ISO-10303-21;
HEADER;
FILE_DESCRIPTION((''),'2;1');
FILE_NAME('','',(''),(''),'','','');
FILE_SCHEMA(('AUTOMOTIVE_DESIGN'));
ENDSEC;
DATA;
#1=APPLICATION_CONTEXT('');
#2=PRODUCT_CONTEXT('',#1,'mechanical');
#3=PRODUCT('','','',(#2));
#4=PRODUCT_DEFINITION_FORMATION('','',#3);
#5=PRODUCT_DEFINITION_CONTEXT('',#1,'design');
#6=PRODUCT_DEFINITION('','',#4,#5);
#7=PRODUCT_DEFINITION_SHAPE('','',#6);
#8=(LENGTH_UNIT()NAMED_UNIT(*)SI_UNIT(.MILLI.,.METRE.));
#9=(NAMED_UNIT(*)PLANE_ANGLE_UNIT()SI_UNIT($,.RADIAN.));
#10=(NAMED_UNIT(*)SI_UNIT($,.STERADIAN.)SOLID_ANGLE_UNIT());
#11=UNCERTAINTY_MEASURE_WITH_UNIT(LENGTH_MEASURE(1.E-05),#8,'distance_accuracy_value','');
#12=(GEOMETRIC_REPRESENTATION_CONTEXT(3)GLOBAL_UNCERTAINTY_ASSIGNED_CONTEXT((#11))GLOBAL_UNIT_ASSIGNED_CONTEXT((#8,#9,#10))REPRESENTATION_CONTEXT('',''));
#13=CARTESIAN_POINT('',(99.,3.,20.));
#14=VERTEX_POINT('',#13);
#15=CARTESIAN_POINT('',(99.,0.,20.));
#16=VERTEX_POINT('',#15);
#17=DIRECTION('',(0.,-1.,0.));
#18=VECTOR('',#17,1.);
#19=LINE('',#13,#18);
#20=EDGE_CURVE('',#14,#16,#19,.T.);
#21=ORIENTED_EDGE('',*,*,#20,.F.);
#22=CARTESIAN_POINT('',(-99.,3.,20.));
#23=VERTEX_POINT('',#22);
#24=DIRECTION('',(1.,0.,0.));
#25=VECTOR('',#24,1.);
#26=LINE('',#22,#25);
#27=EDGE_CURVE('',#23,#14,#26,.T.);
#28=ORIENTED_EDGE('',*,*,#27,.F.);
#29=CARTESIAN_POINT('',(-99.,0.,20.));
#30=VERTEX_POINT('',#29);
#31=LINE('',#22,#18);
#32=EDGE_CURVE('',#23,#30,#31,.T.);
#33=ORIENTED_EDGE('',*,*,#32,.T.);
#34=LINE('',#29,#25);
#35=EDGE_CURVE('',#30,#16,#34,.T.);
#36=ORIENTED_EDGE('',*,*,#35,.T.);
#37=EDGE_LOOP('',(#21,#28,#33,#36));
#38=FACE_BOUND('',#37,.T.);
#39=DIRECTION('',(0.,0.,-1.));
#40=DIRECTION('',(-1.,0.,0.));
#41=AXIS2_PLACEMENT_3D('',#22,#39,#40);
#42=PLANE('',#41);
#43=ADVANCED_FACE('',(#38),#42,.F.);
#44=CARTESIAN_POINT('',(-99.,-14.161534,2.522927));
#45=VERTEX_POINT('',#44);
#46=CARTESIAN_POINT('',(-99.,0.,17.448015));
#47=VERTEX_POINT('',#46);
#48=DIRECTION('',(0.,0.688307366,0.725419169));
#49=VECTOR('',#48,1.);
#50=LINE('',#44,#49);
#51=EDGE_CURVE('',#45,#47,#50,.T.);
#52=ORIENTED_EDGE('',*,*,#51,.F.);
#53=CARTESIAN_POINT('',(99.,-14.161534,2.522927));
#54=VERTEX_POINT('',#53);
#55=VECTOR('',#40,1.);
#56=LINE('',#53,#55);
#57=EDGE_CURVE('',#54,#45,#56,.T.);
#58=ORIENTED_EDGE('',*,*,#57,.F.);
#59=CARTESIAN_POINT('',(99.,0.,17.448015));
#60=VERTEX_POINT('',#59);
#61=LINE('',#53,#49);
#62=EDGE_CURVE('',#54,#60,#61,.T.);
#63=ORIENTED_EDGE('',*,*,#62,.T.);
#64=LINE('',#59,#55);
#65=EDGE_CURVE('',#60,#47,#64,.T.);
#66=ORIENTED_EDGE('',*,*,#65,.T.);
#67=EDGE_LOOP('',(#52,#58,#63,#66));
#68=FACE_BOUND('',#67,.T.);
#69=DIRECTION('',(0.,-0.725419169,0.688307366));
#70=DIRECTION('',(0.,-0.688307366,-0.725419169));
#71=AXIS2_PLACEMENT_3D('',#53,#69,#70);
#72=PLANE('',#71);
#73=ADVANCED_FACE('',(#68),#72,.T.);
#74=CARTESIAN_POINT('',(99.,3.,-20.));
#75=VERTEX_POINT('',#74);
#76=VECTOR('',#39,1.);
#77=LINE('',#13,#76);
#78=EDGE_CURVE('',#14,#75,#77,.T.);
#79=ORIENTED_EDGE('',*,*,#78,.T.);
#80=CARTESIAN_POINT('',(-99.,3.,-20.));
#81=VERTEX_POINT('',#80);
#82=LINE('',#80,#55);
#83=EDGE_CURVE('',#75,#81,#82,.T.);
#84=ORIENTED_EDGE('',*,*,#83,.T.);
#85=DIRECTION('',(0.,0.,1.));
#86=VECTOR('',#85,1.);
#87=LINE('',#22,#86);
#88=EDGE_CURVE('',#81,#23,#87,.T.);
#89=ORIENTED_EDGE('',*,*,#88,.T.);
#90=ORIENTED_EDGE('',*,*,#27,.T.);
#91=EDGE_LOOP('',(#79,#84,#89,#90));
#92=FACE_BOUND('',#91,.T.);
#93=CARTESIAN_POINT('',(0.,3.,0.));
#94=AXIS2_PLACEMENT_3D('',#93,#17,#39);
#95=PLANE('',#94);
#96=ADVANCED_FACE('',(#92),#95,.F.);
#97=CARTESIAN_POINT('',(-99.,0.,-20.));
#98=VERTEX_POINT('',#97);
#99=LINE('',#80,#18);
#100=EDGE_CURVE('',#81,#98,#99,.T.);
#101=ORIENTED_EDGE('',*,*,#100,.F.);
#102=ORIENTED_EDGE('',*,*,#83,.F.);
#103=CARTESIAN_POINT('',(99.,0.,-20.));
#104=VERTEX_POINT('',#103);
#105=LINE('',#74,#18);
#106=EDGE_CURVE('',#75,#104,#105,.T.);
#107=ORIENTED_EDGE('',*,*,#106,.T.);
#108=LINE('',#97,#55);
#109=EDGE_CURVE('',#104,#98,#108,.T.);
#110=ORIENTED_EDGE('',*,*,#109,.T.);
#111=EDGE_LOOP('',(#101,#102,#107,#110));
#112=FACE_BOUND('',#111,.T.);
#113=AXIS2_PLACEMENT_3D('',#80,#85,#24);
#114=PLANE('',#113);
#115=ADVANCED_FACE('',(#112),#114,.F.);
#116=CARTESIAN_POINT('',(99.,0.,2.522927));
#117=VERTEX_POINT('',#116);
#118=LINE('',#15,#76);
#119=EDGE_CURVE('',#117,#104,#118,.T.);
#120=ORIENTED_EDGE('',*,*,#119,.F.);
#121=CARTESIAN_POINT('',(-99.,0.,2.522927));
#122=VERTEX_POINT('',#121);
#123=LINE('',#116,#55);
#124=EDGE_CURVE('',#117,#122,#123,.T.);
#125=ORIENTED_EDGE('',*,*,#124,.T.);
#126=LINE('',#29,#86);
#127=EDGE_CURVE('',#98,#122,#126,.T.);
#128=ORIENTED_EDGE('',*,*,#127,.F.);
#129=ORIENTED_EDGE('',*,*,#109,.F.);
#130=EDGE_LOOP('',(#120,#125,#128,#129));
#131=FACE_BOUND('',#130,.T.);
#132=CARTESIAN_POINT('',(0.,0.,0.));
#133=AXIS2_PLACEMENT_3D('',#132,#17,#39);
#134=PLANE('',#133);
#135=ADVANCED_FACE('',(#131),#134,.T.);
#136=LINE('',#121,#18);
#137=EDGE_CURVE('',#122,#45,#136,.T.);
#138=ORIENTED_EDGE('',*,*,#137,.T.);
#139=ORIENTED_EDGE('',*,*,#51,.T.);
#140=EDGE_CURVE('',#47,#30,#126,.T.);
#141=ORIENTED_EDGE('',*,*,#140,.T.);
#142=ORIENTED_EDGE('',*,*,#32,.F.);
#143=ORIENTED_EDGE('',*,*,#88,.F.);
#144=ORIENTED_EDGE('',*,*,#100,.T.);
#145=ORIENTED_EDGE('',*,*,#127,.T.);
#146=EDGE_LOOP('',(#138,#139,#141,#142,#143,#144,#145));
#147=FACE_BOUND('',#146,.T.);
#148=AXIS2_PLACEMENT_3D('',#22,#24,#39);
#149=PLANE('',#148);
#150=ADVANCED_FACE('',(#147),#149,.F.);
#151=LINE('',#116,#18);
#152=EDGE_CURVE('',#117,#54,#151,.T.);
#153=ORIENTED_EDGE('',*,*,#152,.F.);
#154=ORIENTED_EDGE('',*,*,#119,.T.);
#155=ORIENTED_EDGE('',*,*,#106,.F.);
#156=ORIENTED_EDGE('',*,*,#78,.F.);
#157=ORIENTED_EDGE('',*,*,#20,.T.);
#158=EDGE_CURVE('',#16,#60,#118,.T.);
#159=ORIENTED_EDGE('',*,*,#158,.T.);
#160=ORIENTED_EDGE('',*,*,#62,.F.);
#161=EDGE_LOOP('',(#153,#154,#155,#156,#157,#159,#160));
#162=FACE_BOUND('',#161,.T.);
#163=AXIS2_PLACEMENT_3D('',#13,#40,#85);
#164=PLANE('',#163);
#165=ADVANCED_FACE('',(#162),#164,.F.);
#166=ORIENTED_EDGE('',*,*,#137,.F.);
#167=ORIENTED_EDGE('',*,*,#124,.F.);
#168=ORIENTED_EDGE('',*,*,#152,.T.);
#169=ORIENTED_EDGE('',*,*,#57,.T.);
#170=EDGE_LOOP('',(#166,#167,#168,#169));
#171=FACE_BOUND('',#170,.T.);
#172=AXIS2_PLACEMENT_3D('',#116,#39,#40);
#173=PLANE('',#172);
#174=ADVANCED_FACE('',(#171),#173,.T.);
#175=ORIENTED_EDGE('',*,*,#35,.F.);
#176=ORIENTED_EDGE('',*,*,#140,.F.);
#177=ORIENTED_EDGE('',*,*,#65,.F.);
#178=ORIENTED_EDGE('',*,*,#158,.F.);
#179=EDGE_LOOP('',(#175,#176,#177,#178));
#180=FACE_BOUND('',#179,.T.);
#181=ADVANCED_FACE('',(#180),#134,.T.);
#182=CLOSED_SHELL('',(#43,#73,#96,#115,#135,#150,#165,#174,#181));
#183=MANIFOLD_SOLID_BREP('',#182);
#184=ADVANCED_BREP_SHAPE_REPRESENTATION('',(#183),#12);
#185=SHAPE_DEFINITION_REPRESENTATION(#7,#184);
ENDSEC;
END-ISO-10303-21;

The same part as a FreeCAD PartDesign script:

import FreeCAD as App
import Part
import Sketcher
from FreeCAD import Vector
Q = App.Units.Quantity

doc = App.newDocument("Part")
params = doc.addObject("Spreadsheet::Sheet", "Params")
for row, (alias, value) in enumerate([
    ("sketch1_width", "198 mm"),
    ("sketch1_height", "40 mm"),
    ("pad1_length", "3 mm"),
    ("pad2_length", "198 mm"),
], start=1):
    params.set(f"A{row}", alias)
    params.set(f"B{row}", "=" + value)
    params.setAlias(f"B{row}", alias)

body = doc.addObject("PartDesign::Body", "Body")

# Sketch on XZ plane
sketch1 = body.newObject("Sketcher::SketchObject", "Sketch")
sketch1.AttachmentSupport = (doc.getObject("XZ_Plane"), [""])
sketch1.MapMode = "FlatFace"
sketch1.addGeometry([
    Part.LineSegment(Vector(-99, -20, 0), Vector(-99, 20, 0)),
    Part.LineSegment(Vector(-99, 20, 0), Vector(99, 20, 0)),
    Part.LineSegment(Vector(99, 20, 0), Vector(99, -20, 0)),
    Part.LineSegment(Vector(99, -20, 0), Vector(-99, -20, 0)),
], False)
sketch1.addConstraint([
    Sketcher.Constraint("Coincident", 0, 2, 1, 1),
    Sketcher.Constraint("Coincident", 1, 2, 2, 1),
    Sketcher.Constraint("Coincident", 2, 2, 3, 1),
    Sketcher.Constraint("Coincident", 3, 2, 0, 1),
    Sketcher.Constraint("Vertical", 0),
    Sketcher.Constraint("Horizontal", 1),
    Sketcher.Constraint("Vertical", 2),
    Sketcher.Constraint("Horizontal", 3),
    Sketcher.Constraint("Symmetric", 0, 2, 2, 2, -1, 1),
    Sketcher.Constraint("DistanceX", 1, 1, 1, 2, Q("198 mm")),
    Sketcher.Constraint("DistanceY", 0, 1, 0, 2, Q("40 mm")),
])
sketch1.setExpression("Constraints[9]", "Params.sketch1_width")
sketch1.setExpression("Constraints[10]", "Params.sketch1_height")
pad1 = body.newObject("PartDesign::Pad", "Pad")
pad1.Profile = sketch1
pad1.setExpression("Length", "Params.pad1_length")
pad1.Reversed = True

# Sketch on YZ plane
sketch2 = body.newObject("Sketcher::SketchObject", "Sketch001")
sketch2.AttachmentSupport = (doc.getObject("YZ_Plane"), [""])
sketch2.MapMode = "FlatFace"
sketch2.AttachmentOffset = App.Placement(Vector(0, 0, -99), App.Rotation())
sketch2.addGeometry([
    Part.LineSegment(Vector(0, 3, 0), Vector(-14, 3, 0)),
    Part.LineSegment(Vector(-14, 3, 0), Vector(0, 17, 0)),
    Part.LineSegment(Vector(0, 17, 0), Vector(0, 3, 0)),
], False)
sketch2.addConstraint([
    Sketcher.Constraint("Coincident", 0, 2, 1, 1),
    Sketcher.Constraint("Coincident", 1, 2, 2, 1),
    Sketcher.Constraint("Coincident", 2, 2, 0, 1),
    Sketcher.Constraint("Horizontal", 0),
    Sketcher.Constraint("Vertical", 2),
    Sketcher.Constraint("PointOnObject", 1, 2, -2),
    Sketcher.Constraint("DistanceY", 2, 2, 2, 1, Q("14.925088 mm")),
    Sketcher.Constraint("DistanceX", 0, 2, 0, 1, Q("14.161534 mm")),
    Sketcher.Constraint("DistanceY", -1, 1, 0, 2, Q("2.522927 mm")),
])
pad2 = body.newObject("PartDesign::Pad", "Pad001")
pad2.Profile = sketch2
pad2.setExpression("Length", "Params.pad2_length")

doc.recompute()
